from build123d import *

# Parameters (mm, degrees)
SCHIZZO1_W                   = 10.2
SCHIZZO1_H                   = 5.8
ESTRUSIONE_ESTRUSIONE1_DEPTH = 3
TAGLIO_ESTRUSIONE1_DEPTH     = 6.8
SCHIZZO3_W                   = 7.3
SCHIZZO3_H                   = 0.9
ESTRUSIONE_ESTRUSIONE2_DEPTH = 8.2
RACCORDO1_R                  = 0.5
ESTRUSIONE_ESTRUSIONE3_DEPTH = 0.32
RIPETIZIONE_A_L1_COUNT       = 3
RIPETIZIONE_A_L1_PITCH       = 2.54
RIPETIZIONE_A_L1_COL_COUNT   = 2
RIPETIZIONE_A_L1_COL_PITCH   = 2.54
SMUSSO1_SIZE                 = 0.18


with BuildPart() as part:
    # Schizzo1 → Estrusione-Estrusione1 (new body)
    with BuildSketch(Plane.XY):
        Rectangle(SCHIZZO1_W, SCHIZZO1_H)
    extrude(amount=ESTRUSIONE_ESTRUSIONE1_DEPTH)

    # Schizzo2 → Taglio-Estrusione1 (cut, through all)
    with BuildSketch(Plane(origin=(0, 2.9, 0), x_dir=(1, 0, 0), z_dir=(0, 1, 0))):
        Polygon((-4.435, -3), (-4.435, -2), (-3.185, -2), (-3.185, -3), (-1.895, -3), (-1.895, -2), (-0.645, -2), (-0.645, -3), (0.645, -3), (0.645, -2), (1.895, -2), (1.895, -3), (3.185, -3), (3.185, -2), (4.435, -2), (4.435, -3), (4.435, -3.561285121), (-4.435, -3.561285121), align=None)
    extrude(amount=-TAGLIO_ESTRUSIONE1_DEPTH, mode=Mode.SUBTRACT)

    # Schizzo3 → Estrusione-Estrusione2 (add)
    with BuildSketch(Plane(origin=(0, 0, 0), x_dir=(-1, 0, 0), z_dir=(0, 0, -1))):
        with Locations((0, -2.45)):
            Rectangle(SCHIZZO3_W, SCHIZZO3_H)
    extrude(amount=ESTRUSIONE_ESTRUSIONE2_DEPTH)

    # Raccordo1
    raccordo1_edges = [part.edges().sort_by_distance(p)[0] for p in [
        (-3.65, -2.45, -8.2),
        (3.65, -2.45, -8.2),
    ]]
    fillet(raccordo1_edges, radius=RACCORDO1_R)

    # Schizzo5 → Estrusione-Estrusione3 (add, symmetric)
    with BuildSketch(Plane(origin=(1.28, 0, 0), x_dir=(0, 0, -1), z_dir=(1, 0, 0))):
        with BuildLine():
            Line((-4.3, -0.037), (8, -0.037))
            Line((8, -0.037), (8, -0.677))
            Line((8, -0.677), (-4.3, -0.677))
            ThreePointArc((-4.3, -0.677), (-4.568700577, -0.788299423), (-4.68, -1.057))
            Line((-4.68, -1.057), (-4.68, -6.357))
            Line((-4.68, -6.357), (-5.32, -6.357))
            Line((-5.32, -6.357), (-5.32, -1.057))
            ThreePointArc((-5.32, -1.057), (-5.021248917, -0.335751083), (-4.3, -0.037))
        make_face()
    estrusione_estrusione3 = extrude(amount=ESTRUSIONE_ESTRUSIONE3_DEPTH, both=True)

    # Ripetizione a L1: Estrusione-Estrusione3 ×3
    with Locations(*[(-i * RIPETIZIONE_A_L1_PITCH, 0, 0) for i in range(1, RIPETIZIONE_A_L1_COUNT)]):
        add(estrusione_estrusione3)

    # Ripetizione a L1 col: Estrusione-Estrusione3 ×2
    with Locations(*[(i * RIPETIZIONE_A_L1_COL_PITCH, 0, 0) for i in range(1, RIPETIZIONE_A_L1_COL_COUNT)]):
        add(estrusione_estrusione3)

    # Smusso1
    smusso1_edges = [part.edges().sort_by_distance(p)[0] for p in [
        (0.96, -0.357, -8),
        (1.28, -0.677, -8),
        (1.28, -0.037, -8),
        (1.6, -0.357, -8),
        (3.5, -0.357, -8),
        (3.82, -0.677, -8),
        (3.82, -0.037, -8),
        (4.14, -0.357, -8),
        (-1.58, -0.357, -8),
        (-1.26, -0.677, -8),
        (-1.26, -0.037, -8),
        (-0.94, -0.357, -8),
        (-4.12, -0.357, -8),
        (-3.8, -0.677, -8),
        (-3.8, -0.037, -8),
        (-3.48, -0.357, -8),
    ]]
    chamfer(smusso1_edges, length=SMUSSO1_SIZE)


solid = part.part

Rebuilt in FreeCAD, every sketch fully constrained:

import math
import FreeCAD as App
import Part
import Sketcher
from FreeCAD import Vector
Q = App.Units.Quantity


def edges_at(feature, points):
    """Names of the edges that pass closest to the given points."""
    edges = feature.Shape.Edges
    near = lambda p: min(range(len(edges)), key=lambda i: edges[i].distToShape(Part.Vertex(*p))[0])
    return sorted({f"Edge{near(p) + 1}" for p in points})


def add_polygon(sketch, points):
    """Adds a closed chain of lines whose ends are joined by coincident constraints."""
    first, n = sketch.GeometryCount, len(points)
    for a, b in zip(points, points[1:] + points[:1]):
        sketch.addGeometry(Part.LineSegment(App.Vector(*a, 0), App.Vector(*b, 0)), False)
    for i in range(n):
        sketch.addConstraint(Sketcher.Constraint("Coincident", first + i, 2, first + (i + 1) % n, 1))

doc = App.newDocument("Part")
body = doc.addObject("PartDesign::Body", "Body")

# Sketch on XY plane
sketch1 = body.newObject("Sketcher::SketchObject", "Sketch")
sketch1.AttachmentSupport = (doc.getObject("XY_Plane"), [""])
sketch1.MapMode = "FlatFace"
add_polygon(sketch1, [(-5, 3), (-5, -3), (5, -3), (5, 3)])  # lines 0-3
sketch1.addConstraint(Sketcher.Constraint("Vertical", 0))
sketch1.addConstraint(Sketcher.Constraint("Horizontal", 1))
sketch1.addConstraint(Sketcher.Constraint("Vertical", 2))
sketch1.addConstraint(Sketcher.Constraint("Horizontal", 3))
sketch1.addConstraint(Sketcher.Constraint("Symmetric", 0, 2, 2, 2, -1, 1))
sketch1.addConstraint(Sketcher.Constraint("DistanceX", 1, 1, 1, 2, Q("10.2 mm")))
sketch1.addConstraint(Sketcher.Constraint("DistanceY", 0, 2, 0, 1, Q("5.8 mm")))
pad1 = body.newObject("PartDesign::Pad", "Pad")
pad1.Profile = sketch1
pad1.Length = 3

# Sketch on XZ plane
sketch2 = body.newObject("Sketcher::SketchObject", "Sketch001")
sketch2.AttachmentSupport = (doc.getObject("XZ_Plane"), [""])
sketch2.MapMode = "FlatFace"
sketch2.AttachmentOffset = App.Placement(Vector(0, 0, -2.9), App.Rotation())
add_polygon(sketch2, [(-4.4, 2), (-4.4, 3.6), (4.4, 3.6), (4.4, 2), (3.2, 2), (3.2, 3), (1.9, 3), (1.9, 2), (0.6, 2), (0.6, 3), (-0.6, 3), (-0.6, 2), (-1.9, 2), (-1.9, 3), (-3.2, 3), (-3.2, 2)])  # lines 0-15
sketch2.addConstraint(Sketcher.Constraint("Vertical", 0))
sketch2.addConstraint(Sketcher.Constraint("Horizontal", 1))
sketch2.addConstraint(Sketcher.Constraint("Vertical", 2))
sketch2.addConstraint(Sketcher.Constraint("Horizontal", 3))
sketch2.addConstraint(Sketcher.Constraint("Vertical", 4))
sketch2.addConstraint(Sketcher.Constraint("Horizontal", 5))
sketch2.addConstraint(Sketcher.Constraint("Vertical", 6))
sketch2.addConstraint(Sketcher.Constraint("Horizontal", 7))
sketch2.addConstraint(Sketcher.Constraint("Vertical", 8))
sketch2.addConstraint(Sketcher.Constraint("Horizontal", 9))
sketch2.addConstraint(Sketcher.Constraint("Vertical", 10))
sketch2.addConstraint(Sketcher.Constraint("Horizontal", 11))
sketch2.addConstraint(Sketcher.Constraint("Vertical", 12))
sketch2.addConstraint(Sketcher.Constraint("Horizontal", 13))
sketch2.addConstraint(Sketcher.Constraint("Vertical", 14))
sketch2.addConstraint(Sketcher.Constraint("Horizontal", 15))
sketch2.addConstraint(Sketcher.Constraint("Symmetric", 7, 2, 10, 2, -2))
sketch2.addConstraint(Sketcher.Constraint("Symmetric", 5, 2, 12, 2, -2))
sketch2.addConstraint(Sketcher.Constraint("Symmetric", 3, 2, 14, 2, -2))
sketch2.addConstraint(Sketcher.Constraint("Horizontal", 3, 2, 6, 2))
sketch2.addConstraint(Sketcher.Constraint("Horizontal", 5, 2, 8, 2))
sketch2.addConstraint(Sketcher.Constraint("Equal", 3, 7))
sketch2.addConstraint(Sketcher.Constraint("Equal", 5, 9))
sketch2.addConstraint(Sketcher.Constraint("Equal", 11, 15))
sketch2.addConstraint(Sketcher.Constraint("DistanceY", 4, 1, 4, 2, Q("1 mm")))
sketch2.addConstraint(Sketcher.Constraint("DistanceY", -1, 1, 2, 2, Q("2 mm")))
sketch2.addConstraint(Sketcher.Constraint("DistanceX", 1, 1, 1, 2, Q("8.87 mm")))
sketch2.addConstraint(Sketcher.Constraint("DistanceX", 3, 2, 3, 1, Q("1.25 mm")))
sketch2.addConstraint(Sketcher.Constraint("DistanceY", 0, 1, 0, 2, Q("1.561285 mm")))
pocket1 = body.newObject("PartDesign::Pocket", "Pocket")
pocket1.Profile = sketch2
pocket1.Type = "ThroughAll"
pocket1.Reversed = True

# Sketch on XY plane
sketch3 = body.newObject("Sketcher::SketchObject", "Sketch002")
sketch3.AttachmentSupport = (doc.getObject("XY_Plane"), [""])
sketch3.MapMode = "FlatFace"
add_polygon(sketch3, [(3.6, -2), (3.6, -2.9), (-3.6, -2.9), (-3.6, -2)])  # lines 0-3
sketch3.addConstraint(Sketcher.Constraint("Vertical", 0))
sketch3.addConstraint(Sketcher.Constraint("Horizontal", 1))
sketch3.addConstraint(Sketcher.Constraint("Vertical", 2))
sketch3.addConstraint(Sketcher.Constraint("Horizontal", 3))
sketch3.addConstraint(Sketcher.Constraint("DistanceX", 1, 2, 1, 1, Q("7.3 mm")))
sketch3.addConstraint(Sketcher.Constraint("DistanceY", 0, 2, 0, 1, Q("0.9 mm")))
sketch3.addConstraint(Sketcher.Constraint("DistanceY", 2, 2, -1, 1, Q("2 mm")))
sketch3.addConstraint(Sketcher.Constraint("DistanceX", -1, 1, 0, 2, Q("3.65 mm")))
pad2 = body.newObject("PartDesign::Pad", "Pad001")
pad2.Profile = sketch3
pad2.Length = 8.2
pad2.Reversed = True
doc.recompute()

fillet = body.newObject("PartDesign::Fillet", "Fillet")
fillet.Base = (pad2, edges_at(pad2, [(-3.65, -2.45, -8.2), (3.65, -2.45, -8.2)]))
fillet.Radius = 0.5

# Sketch on YZ plane
sketch4 = body.newObject("Sketcher::SketchObject", "Sketch003")
sketch4.AttachmentSupport = (doc.getObject("YZ_Plane"), [""])
sketch4.MapMode = "FlatFace"
sketch4.AttachmentOffset = App.Placement(Vector(0, 0, 1.28), App.Rotation())
sketch4.addGeometry(Part.LineSegment(Vector(-0.04, -8, 0), Vector(-0.04, 4.3, 0)), False)
sketch4.addGeometry(Part.ArcOfCircle(Part.Circle(Vector(-1.06, 4.3, 0), Vector(0, 0, 1), 1.02), math.radians(0), math.radians(90)), False)
sketch4.addGeometry(Part.LineSegment(Vector(-1.06, 5.32, 0), Vector(-6.36, 5.32, 0)), False)
sketch4.addGeometry(Part.LineSegment(Vector(-6.36, 5.32, 0), Vector(-6.36, 4.68, 0)), False)
sketch4.addGeometry(Part.LineSegment(Vector(-6.36, 4.68, 0), Vector(-1.06, 4.68, 0)), False)
sketch4.addGeometry(Part.ArcOfCircle(Part.Circle(Vector(-1.06, 4.3, 0), Vector(0, 0, 1), 0.38), math.radians(0), math.radians(90)), False)
sketch4.addGeometry(Part.LineSegment(Vector(-0.68, 4.3, 0), Vector(-0.68, -8, 0)), False)
sketch4.addGeometry(Part.LineSegment(Vector(-0.68, -8, 0), Vector(-0.04, -8, 0)), False)
sketch4.addConstraint(Sketcher.Constraint("Tangent", 0, 2, 1, 1))
sketch4.addConstraint(Sketcher.Constraint("Tangent", 1, 2, 2, 1))
sketch4.addConstraint(Sketcher.Constraint("Coincident", 2, 2, 3, 1))
sketch4.addConstraint(Sketcher.Constraint("Coincident", 3, 2, 4, 1))
sketch4.addConstraint(Sketcher.Constraint("Tangent", 4, 2, 5, 2))
sketch4.addConstraint(Sketcher.Constraint("Tangent", 5, 1, 6, 1))
sketch4.addConstraint(Sketcher.Constraint("Coincident", 6, 2, 7, 1))
sketch4.addConstraint(Sketcher.Constraint("Coincident", 7, 2, 0, 1))
sketch4.addConstraint(Sketcher.Constraint("Vertical", 0))
sketch4.addConstraint(Sketcher.Constraint("Horizontal", 2))
sketch4.addConstraint(Sketcher.Constraint("Vertical", 3))
sketch4.addConstraint(Sketcher.Constraint("Horizontal", 4))
sketch4.addConstraint(Sketcher.Constraint("Vertical", 6))
sketch4.addConstraint(Sketcher.Constraint("Horizontal", 7))
sketch4.addConstraint(Sketcher.Constraint("Coincident", 5, 3, 1, 3))
sketch4.addConstraint(Sketcher.Constraint("Radius", 1, Q("1.02 mm")))
sketch4.addConstraint(Sketcher.Constraint("Radius", 5, Q("0.38 mm")))
sketch4.addConstraint(Sketcher.Constraint("DistanceX", 2, 2, 2, 1, Q("5.3 mm")))
sketch4.addConstraint(Sketcher.Constraint("DistanceY", 0, 1, 0, 2, Q("12.3 mm")))
sketch4.addConstraint(Sketcher.Constraint("DistanceY", 6, 2, -1, 1, Q("8 mm")))
sketch4.addConstraint(Sketcher.Constraint("DistanceX", 1, 3, -1, 1, Q("1.057 mm")))
pad3 = body.newObject("PartDesign::Pad", "Pad002")
pad3.Profile = sketch4
pad3.Length = 0.64
pad3.Midplane = True
doc.recompute()

linearpattern = body.newObject("PartDesign::LinearPattern", "LinearPattern")
linearpattern.Originals = [pad3]
linearpattern.Direction = (doc.getObject("X_Axis"), [""])
linearpattern.Mode = "offset"
linearpattern.Offset = 2.54
linearpattern.Occurrences = 3
linearpattern.Reversed = True
body.Tip = linearpattern
doc.recompute()

linearpattern2 = body.newObject("PartDesign::LinearPattern", "LinearPattern001")
linearpattern2.Originals = [pad3]
linearpattern2.Direction = (doc.getObject("X_Axis"), [""])
linearpattern2.Mode = "offset"
linearpattern2.Offset = 2.54
linearpattern2.Occurrences = 2
body.Tip = linearpattern2
doc.recompute()

chamfer = body.newObject("PartDesign::Chamfer", "Chamfer")
chamfer.Base = (linearpattern2, edges_at(linearpattern2, [
    (0.96, -0.357, -8),
    (1.28, -0.677, -8),
    (1.28, -0.037, -8),
    (1.6, -0.357, -8),
    (3.5, -0.357, -8),
    (3.82, -0.677, -8),
    (3.82, -0.037, -8),
    (4.14, -0.357, -8),
    (-1.58, -0.357, -8),
    (-1.26, -0.677, -8),
    (-1.26, -0.037, -8),
    (-0.94, -0.357, -8),
    (-4.12, -0.357, -8),
    (-3.8, -0.677, -8),
    (-3.8, -0.037, -8),
    (-3.48, -0.357, -8),
]))
chamfer.Size = 0.18

doc.recompute()
